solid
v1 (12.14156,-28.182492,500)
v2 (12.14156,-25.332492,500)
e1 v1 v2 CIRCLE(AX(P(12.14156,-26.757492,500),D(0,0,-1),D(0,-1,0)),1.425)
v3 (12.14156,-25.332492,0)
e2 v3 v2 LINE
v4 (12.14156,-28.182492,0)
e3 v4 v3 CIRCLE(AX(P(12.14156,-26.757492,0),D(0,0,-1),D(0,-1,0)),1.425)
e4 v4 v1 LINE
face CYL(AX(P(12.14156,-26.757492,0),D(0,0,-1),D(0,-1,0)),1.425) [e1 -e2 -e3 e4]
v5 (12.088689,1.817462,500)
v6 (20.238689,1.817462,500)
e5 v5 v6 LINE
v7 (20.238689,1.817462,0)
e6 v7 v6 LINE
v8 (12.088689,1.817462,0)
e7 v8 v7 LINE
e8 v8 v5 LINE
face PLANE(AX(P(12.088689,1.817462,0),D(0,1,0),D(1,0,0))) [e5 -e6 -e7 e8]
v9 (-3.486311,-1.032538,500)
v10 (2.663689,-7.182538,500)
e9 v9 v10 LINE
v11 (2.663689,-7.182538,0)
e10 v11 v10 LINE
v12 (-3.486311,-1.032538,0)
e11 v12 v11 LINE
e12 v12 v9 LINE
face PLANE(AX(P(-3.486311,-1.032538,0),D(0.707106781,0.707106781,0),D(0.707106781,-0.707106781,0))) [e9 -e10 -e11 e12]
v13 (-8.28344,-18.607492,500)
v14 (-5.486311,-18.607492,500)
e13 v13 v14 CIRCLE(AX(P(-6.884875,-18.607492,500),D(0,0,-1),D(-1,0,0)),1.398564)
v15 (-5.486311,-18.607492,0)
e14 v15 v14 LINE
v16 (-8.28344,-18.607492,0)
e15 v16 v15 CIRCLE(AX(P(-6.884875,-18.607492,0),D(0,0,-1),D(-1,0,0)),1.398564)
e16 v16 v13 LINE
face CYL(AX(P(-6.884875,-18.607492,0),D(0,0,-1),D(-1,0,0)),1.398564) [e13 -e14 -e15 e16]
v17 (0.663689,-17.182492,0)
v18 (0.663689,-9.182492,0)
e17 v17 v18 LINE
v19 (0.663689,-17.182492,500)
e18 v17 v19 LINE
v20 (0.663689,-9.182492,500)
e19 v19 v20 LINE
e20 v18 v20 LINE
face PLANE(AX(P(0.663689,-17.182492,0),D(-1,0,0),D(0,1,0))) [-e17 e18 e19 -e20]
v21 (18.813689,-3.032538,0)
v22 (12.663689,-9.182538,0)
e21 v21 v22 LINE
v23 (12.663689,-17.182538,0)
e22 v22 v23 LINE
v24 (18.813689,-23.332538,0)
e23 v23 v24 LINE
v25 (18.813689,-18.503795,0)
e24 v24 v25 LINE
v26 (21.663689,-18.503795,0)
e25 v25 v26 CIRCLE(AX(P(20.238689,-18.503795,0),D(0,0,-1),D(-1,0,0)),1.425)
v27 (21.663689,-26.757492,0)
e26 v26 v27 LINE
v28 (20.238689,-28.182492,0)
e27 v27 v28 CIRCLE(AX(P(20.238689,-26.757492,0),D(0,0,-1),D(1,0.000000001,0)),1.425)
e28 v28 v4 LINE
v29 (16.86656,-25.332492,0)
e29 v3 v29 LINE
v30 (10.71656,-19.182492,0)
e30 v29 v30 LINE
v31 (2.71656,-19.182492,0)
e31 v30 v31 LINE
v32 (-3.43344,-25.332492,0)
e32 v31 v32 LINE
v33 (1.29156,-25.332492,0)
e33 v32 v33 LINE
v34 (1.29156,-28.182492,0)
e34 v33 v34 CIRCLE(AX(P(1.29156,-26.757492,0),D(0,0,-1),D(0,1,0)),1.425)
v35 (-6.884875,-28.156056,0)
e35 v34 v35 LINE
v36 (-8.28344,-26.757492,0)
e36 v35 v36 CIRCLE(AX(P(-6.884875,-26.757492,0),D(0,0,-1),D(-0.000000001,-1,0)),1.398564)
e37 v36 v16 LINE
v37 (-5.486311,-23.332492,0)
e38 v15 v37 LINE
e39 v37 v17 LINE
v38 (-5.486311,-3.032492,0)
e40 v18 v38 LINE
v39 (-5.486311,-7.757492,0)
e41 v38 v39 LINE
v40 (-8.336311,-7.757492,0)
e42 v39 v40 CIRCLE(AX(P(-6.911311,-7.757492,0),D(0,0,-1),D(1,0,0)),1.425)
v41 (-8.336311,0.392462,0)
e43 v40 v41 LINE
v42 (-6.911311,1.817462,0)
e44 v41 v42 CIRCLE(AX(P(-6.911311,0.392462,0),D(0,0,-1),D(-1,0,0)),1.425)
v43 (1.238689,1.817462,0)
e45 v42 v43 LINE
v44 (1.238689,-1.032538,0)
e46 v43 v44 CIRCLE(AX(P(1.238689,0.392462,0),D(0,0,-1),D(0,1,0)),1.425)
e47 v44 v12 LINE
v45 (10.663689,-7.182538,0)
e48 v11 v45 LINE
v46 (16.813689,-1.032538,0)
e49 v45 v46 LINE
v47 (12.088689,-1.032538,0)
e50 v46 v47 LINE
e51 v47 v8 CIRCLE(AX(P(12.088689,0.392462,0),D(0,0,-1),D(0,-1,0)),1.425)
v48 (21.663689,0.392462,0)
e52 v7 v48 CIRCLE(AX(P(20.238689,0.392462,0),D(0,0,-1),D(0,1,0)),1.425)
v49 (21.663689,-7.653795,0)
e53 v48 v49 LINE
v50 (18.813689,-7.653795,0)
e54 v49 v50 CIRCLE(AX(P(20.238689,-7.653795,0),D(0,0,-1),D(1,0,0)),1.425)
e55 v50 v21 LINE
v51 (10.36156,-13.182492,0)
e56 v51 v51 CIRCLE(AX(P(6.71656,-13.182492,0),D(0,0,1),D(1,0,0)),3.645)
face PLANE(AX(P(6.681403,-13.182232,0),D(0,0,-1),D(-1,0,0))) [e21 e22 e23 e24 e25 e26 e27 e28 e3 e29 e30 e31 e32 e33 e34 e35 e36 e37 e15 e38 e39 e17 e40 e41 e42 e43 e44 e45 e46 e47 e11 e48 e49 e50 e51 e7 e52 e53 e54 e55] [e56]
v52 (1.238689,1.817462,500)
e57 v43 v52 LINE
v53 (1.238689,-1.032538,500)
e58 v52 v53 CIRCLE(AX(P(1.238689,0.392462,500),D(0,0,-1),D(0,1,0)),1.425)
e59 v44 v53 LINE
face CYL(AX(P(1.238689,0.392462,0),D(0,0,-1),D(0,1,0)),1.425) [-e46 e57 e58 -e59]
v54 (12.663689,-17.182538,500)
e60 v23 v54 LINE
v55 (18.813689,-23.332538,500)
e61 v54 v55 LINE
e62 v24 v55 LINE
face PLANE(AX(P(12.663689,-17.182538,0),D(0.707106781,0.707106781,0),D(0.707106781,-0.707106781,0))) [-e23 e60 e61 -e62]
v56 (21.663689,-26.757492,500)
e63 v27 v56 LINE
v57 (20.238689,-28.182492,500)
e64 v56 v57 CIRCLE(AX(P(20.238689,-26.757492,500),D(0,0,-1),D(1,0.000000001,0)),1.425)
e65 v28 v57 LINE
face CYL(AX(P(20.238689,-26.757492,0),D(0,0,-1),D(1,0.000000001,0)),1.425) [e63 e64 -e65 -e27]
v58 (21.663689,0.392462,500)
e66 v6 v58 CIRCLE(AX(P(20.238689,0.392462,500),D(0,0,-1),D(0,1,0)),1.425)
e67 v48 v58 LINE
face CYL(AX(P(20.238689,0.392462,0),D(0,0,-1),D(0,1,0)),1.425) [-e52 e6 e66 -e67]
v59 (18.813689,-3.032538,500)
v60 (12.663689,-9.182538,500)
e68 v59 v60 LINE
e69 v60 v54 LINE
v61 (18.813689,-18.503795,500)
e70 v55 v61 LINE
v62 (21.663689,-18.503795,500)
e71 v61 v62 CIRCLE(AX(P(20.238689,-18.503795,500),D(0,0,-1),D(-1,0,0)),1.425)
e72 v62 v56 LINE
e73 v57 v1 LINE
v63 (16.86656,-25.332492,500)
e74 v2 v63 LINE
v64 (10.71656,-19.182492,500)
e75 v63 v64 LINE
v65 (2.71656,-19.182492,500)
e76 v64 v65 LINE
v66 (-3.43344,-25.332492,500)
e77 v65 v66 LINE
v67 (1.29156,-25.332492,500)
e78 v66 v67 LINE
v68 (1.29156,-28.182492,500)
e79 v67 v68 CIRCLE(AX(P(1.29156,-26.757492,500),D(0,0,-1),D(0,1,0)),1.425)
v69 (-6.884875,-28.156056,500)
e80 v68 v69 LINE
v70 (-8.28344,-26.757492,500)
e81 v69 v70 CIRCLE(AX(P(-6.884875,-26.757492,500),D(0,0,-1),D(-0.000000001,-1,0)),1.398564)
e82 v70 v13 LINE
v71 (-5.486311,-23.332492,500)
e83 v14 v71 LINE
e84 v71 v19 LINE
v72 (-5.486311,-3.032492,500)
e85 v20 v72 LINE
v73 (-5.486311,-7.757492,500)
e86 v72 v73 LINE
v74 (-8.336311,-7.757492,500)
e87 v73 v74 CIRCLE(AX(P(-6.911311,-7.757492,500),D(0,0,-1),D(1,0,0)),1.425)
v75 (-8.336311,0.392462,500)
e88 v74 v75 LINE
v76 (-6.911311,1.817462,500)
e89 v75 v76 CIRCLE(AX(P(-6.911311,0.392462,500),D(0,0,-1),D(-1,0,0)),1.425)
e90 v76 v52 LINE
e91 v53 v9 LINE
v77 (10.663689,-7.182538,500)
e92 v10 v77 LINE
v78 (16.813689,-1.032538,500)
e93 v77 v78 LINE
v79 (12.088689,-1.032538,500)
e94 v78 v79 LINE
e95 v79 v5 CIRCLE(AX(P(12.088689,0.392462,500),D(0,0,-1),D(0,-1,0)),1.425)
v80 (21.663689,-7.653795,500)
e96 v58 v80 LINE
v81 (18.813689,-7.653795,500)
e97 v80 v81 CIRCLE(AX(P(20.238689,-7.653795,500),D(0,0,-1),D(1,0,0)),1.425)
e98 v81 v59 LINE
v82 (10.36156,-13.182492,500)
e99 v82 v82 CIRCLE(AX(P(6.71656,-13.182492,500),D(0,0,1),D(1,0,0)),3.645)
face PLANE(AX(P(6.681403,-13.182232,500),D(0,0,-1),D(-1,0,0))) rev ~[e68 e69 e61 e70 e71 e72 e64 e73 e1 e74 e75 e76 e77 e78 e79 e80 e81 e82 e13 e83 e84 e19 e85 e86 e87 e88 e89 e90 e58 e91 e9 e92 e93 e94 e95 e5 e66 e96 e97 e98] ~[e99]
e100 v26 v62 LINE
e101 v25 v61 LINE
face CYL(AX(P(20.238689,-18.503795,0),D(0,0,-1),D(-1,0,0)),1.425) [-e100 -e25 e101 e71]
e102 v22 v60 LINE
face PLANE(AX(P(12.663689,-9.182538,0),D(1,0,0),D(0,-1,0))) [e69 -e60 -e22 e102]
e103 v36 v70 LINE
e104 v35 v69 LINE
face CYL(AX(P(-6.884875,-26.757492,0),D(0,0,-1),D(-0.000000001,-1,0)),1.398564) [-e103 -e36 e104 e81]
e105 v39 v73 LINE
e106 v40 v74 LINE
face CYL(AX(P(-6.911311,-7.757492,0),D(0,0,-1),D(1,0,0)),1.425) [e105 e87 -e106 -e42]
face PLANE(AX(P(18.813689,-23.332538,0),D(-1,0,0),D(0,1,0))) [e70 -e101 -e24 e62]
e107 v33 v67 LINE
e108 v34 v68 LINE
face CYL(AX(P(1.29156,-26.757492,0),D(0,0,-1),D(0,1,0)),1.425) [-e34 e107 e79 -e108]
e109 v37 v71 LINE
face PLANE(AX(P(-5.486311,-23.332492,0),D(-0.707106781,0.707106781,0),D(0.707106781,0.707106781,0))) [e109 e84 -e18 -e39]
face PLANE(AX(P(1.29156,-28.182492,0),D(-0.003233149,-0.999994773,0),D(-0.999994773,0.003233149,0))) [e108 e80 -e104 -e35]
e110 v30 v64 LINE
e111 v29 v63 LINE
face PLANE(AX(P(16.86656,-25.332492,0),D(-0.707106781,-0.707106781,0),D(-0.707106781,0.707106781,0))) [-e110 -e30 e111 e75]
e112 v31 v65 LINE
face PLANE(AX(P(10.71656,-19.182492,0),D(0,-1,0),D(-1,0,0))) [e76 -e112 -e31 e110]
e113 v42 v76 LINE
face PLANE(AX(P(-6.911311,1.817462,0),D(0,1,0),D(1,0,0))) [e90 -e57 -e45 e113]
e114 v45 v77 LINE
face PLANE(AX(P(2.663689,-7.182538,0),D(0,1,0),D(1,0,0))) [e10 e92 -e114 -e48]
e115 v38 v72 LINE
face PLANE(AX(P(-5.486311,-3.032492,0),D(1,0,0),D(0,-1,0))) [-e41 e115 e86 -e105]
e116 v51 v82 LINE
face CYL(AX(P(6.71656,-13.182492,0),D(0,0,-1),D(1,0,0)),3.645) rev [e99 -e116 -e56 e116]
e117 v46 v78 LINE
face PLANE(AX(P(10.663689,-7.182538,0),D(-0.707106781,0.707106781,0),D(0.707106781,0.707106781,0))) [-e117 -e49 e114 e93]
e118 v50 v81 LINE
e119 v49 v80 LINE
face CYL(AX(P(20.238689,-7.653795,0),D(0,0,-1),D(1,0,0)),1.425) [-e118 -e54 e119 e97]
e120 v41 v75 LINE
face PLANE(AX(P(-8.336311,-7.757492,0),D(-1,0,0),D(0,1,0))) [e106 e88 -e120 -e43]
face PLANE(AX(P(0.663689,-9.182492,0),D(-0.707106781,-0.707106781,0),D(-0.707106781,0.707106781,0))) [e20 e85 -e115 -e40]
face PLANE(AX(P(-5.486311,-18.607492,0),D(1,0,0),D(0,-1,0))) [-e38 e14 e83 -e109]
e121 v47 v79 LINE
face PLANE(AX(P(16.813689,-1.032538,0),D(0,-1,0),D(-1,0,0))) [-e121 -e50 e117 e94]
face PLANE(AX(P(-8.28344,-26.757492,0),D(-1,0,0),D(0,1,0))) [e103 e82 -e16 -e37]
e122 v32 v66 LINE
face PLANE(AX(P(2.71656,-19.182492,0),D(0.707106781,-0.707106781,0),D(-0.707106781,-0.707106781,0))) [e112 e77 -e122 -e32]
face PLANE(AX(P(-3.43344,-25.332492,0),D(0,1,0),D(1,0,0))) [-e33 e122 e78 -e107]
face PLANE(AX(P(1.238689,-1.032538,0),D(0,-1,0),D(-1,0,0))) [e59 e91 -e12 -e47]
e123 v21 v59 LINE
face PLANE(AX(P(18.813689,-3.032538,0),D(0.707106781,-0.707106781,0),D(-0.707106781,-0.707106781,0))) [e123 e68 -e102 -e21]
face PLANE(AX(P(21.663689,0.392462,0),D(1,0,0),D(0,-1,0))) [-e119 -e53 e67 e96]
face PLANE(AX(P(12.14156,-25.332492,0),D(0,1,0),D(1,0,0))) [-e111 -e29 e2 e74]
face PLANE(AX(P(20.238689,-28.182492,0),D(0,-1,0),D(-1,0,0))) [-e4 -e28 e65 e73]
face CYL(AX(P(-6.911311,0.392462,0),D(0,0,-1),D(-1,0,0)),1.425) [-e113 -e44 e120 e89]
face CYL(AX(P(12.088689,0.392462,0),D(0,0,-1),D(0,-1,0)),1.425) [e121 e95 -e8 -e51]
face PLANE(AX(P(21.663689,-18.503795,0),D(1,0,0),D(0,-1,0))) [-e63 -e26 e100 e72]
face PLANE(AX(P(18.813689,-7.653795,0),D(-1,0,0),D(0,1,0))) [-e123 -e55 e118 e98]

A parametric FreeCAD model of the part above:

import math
import FreeCAD as App
import Part
import Sketcher

V = App.Vector

doc = App.newDocument("Part")
body = doc.addObject("PartDesign::Body", "Body")

# Sketch on XY plane
sketch1 = doc.addObject("Sketcher::SketchObject", "Sketch")
body.addObject(sketch1)
sketch1.AttachmentSupport = (doc.XY_Plane, [""])
sketch1.MapMode = "FlatFace"
sketch1.addGeometry(Part.LineSegment(V(16.9, -25.3, 0), V(12.1, -25.3, 0)), False)
sketch1.addGeometry(Part.ArcOfCircle(Part.Circle(V(12.1, -26.8, 0), V(0, 0, 1), 1.4), math.radians(90), math.radians(270)), False)
sketch1.addGeometry(Part.LineSegment(V(12.1, -28.2, 0), V(20.2, -28.2, 0)), False)
sketch1.addGeometry(Part.ArcOfCircle(Part.Circle(V(20.2, -26.8, 0), V(0, 0, 1), 1.4), math.radians(-90), math.radians(0)), False)
sketch1.addGeometry(Part.LineSegment(V(21.7, -26.8, 0), V(21.7, -18.5, 0)), False)
sketch1.addGeometry(Part.ArcOfCircle(Part.Circle(V(20.2, -18.5, 0), V(0, 0, 1), 1.4), math.radians(0), math.radians(180)), False)
sketch1.addGeometry(Part.LineSegment(V(18.8, -18.5, 0), V(18.8, -23.3, 0)), False)
sketch1.addGeometry(Part.LineSegment(V(18.8, -23.3, 0), V(12.7, -17.2, 0)), False)
sketch1.addGeometry(Part.LineSegment(V(12.7, -17.2, 0), V(12.7, -9.2, 0)), False)
sketch1.addGeometry(Part.LineSegment(V(12.7, -9.2, 0), V(18.8, -3, 0)), False)
sketch1.addGeometry(Part.LineSegment(V(18.8, -3, 0), V(18.8, -7.7, 0)), False)
sketch1.addGeometry(Part.ArcOfCircle(Part.Circle(V(20.2, -7.7, 0), V(0, 0, 1), 1.4), math.radians(180), math.radians(360)), False)
sketch1.addGeometry(Part.LineSegment(V(21.7, -7.7, 0), V(21.7, 0.4, 0)), False)
sketch1.addGeometry(Part.ArcOfCircle(Part.Circle(V(20.2, 0.4, 0), V(0, 0, 1), 1.4), math.radians(0), math.radians(90)), False)
sketch1.addGeometry(Part.LineSegment(V(20.2, 1.8, 0), V(12.1, 1.8, 0)), False)
sketch1.addGeometry(Part.ArcOfCircle(Part.Circle(V(12.1, 0.4, 0), V(0, 0, 1), 1.4), math.radians(90), math.radians(270)), False)
sketch1.addGeometry(Part.LineSegment(V(12.1, -1, 0), V(16.8, -1, 0)), False)
sketch1.addGeometry(Part.LineSegment(V(16.8, -1, 0), V(10.7, -7.2, 0)), False)
sketch1.addGeometry(Part.LineSegment(V(10.7, -7.2, 0), V(2.7, -7.2, 0)), False)
sketch1.addGeometry(Part.LineSegment(V(2.7, -7.2, 0), V(-3.5, -1, 0)), False)
sketch1.addGeometry(Part.LineSegment(V(-3.5, -1, 0), V(1.2, -1, 0)), False)
sketch1.addGeometry(Part.ArcOfCircle(Part.Circle(V(1.2, 0.4, 0), V(0, 0, 1), 1.4), math.radians(-90), math.radians(90)), False)
sketch1.addGeometry(Part.LineSegment(V(1.2, 1.8, 0), V(-6.9, 1.8, 0)), False)
sketch1.addGeometry(Part.ArcOfCircle(Part.Circle(V(-6.9, 0.4, 0), V(0, 0, 1), 1.4), math.radians(90), math.radians(180)), False)
sketch1.addGeometry(Part.LineSegment(V(-8.3, 0.4, 0), V(-8.3, -7.8, 0)), False)
sketch1.addGeometry(Part.ArcOfCircle(Part.Circle(V(-6.9, -7.8, 0), V(0, 0, 1), 1.4), math.radians(180), math.radians(360)), False)
sketch1.addGeometry(Part.LineSegment(V(-5.5, -7.8, 0), V(-5.5, -3, 0)), False)
sketch1.addGeometry(Part.LineSegment(V(-5.5, -3, 0), V(0.7, -9.2, 0)), False)
sketch1.addGeometry(Part.LineSegment(V(0.7, -9.2, 0), V(0.7, -17.2, 0)), False)
sketch1.addGeometry(Part.LineSegment(V(0.7, -17.2, 0), V(-5.5, -23.3, 0)), False)
sketch1.addGeometry(Part.LineSegment(V(-5.5, -23.3, 0), V(-5.5, -18.6, 0)), False)
sketch1.addGeometry(Part.ArcOfCircle(Part.Circle(V(-6.9, -18.6, 0), V(0, 0, 1), 1.4), math.radians(0), math.radians(180)), False)
sketch1.addGeometry(Part.LineSegment(V(-8.3, -18.6, 0), V(-8.3, -26.8, 0)), False)
sketch1.addGeometry(Part.ArcOfCircle(Part.Circle(V(-6.9, -26.8, 0), V(0, 0, 1), 1.4), math.radians(-180), math.radians(-90)), False)
sketch1.addGeometry(Part.LineSegment(V(-6.9, -28.2, 0), V(1.3, -28.2, 0)), False)
sketch1.addGeometry(Part.ArcOfCircle(Part.Circle(V(1.3, -26.8, 0), V(0, 0, 1), 1.4), math.radians(-90), math.radians(90)), False)
sketch1.addGeometry(Part.LineSegment(V(1.3, -25.3, 0), V(-3.4, -25.3, 0)), False)
sketch1.addGeometry(Part.LineSegment(V(-3.4, -25.3, 0), V(2.7, -19.2, 0)), False)
sketch1.addGeometry(Part.LineSegment(V(2.7, -19.2, 0), V(10.7, -19.2, 0)), False)
sketch1.addGeometry(Part.LineSegment(V(10.7, -19.2, 0), V(16.9, -25.3, 0)), False)
sketch1.addGeometry(Part.Circle(V(6.7, -13.2, 0), V(0, 0, 1), 3.6), False)
sketch1.addConstraint(Sketcher.Constraint("Tangent", 0, 2, 1, 1))
sketch1.addConstraint(Sketcher.Constraint("Tangent", 1, 2, 2, 1))
sketch1.addConstraint(Sketcher.Constraint("Tangent", 2, 2, 3, 1))
sketch1.addConstraint(Sketcher.Constraint("Tangent", 3, 2, 4, 1))
sketch1.addConstraint(Sketcher.Constraint("Tangent", 4, 2, 5, 1))
sketch1.addConstraint(Sketcher.Constraint("Tangent", 5, 2, 6, 1))
sketch1.addConstraint(Sketcher.Constraint("Coincident", 6, 2, 7, 1))
sketch1.addConstraint(Sketcher.Constraint("Coincident", 7, 2, 8, 1))
sketch1.addConstraint(Sketcher.Constraint("Coincident", 8, 2, 9, 1))
sketch1.addConstraint(Sketcher.Constraint("Coincident", 9, 2, 10, 1))
sketch1.addConstraint(Sketcher.Constraint("Tangent", 10, 2, 11, 1))
sketch1.addConstraint(Sketcher.Constraint("Tangent", 11, 2, 12, 1))
sketch1.addConstraint(Sketcher.Constraint("Tangent", 12, 2, 13, 1))
sketch1.addConstraint(Sketcher.Constraint("Tangent", 13, 2, 14, 1))
sketch1.addConstraint(Sketcher.Constraint("Tangent", 14, 2, 15, 1))
sketch1.addConstraint(Sketcher.Constraint("Tangent", 15, 2, 16, 1))
sketch1.addConstraint(Sketcher.Constraint("Coincident", 16, 2, 17, 1))
sketch1.addConstraint(Sketcher.Constraint("Coincident", 17, 2, 18, 1))
sketch1.addConstraint(Sketcher.Constraint("Coincident", 18, 2, 19, 1))
sketch1.addConstraint(Sketcher.Constraint("Coincident", 19, 2, 20, 1))
sketch1.addConstraint(Sketcher.Constraint("Tangent", 20, 2, 21, 1))
sketch1.addConstraint(Sketcher.Constraint("Tangent", 21, 2, 22, 1))
sketch1.addConstraint(Sketcher.Constraint("Tangent", 22, 2, 23, 1))
sketch1.addConstraint(Sketcher.Constraint("Tangent", 23, 2, 24, 1))
sketch1.addConstraint(Sketcher.Constraint("Tangent", 24, 2, 25, 1))
sketch1.addConstraint(Sketcher.Constraint("Tangent", 25, 2, 26, 1))
sketch1.addConstraint(Sketcher.Constraint("Coincident", 26, 2, 27, 1))
sketch1.addConstraint(Sketcher.Constraint("Coincident", 27, 2, 28, 1))
sketch1.addConstraint(Sketcher.Constraint("Coincident", 28, 2, 29, 1))
sketch1.addConstraint(Sketcher.Constraint("Coincident", 29, 2, 30, 1))
sketch1.addConstraint(Sketcher.Constraint("Tangent", 30, 2, 31, 1))
sketch1.addConstraint(Sketcher.Constraint("Tangent", 31, 2, 32, 1))
sketch1.addConstraint(Sketcher.Constraint("Tangent", 32, 2, 33, 1))
sketch1.addConstraint(Sketcher.Constraint("Coincident", 33, 2, 34, 1))
sketch1.addConstraint(Sketcher.Constraint("Coincident", 34, 2, 35, 1))
sketch1.addConstraint(Sketcher.Constraint("Tangent", 35, 2, 36, 1))
sketch1.addConstraint(Sketcher.Constraint("Coincident", 36, 2, 37, 1))
sketch1.addConstraint(Sketcher.Constraint("Coincident", 37, 2, 38, 1))
sketch1.addConstraint(Sketcher.Constraint("Coincident", 38, 2, 39, 1))
sketch1.addConstraint(Sketcher.Constraint("Coincident", 39, 2, 0, 1))
sketch1.addConstraint(Sketcher.Constraint("Horizontal", 0))
sketch1.addConstraint(Sketcher.Constraint("Horizontal", 2))
sketch1.addConstraint(Sketcher.Constraint("Vertical", 4))
sketch1.addConstraint(Sketcher.Constraint("Vertical", 6))
sketch1.addConstraint(Sketcher.Constraint("Vertical", 8))
sketch1.addConstraint(Sketcher.Constraint("Vertical", 10))
sketch1.addConstraint(Sketcher.Constraint("Vertical", 12))
sketch1.addConstraint(Sketcher.Constraint("Horizontal", 14))
sketch1.addConstraint(Sketcher.Constraint("Horizontal", 16))
sketch1.addConstraint(Sketcher.Constraint("Horizontal", 18))
sketch1.addConstraint(Sketcher.Constraint("Horizontal", 20))
sketch1.addConstraint(Sketcher.Constraint("Horizontal", 22))
sketch1.addConstraint(Sketcher.Constraint("Vertical", 24))
sketch1.addConstraint(Sketcher.Constraint("Vertical", 26))
sketch1.addConstraint(Sketcher.Constraint("Vertical", 28))
sketch1.addConstraint(Sketcher.Constraint("Vertical", 30))
sketch1.addConstraint(Sketcher.Constraint("Vertical", 32))
sketch1.addConstraint(Sketcher.Constraint("Horizontal", 36))
sketch1.addConstraint(Sketcher.Constraint("Horizontal", 38))
sketch1.addConstraint(Sketcher.Constraint("Equal", 1, 3))
sketch1.addConstraint(Sketcher.Constraint("Equal", 3, 5))
sketch1.addConstraint(Sketcher.Constraint("Equal", 5, 11))
sketch1.addConstraint(Sketcher.Constraint("Equal", 11, 13))
sketch1.addConstraint(Sketcher.Constraint("Equal", 13, 15))
sketch1.addConstraint(Sketcher.Constraint("Equal", 15, 21))
sketch1.addConstraint(Sketcher.Constraint("Equal", 21, 23))
sketch1.addConstraint(Sketcher.Constraint("Equal", 23, 25))
sketch1.addConstraint(Sketcher.Constraint("Equal", 31, 33))
sketch1.addConstraint(Sketcher.Constraint("Equal", 25, 35))
sketch1.addConstraint(Sketcher.Constraint("Perpendicular", 7, 9))
sketch1.addConstraint(Sketcher.Constraint("Parallel", 9, 17))
sketch1.addConstraint(Sketcher.Constraint("Perpendicular", 17, 19))
sketch1.addConstraint(Sketcher.Constraint("Parallel", 19, 27))
sketch1.addConstraint(Sketcher.Constraint("Perpendicular", 27, 29))
sketch1.addConstraint(Sketcher.Constraint("Parallel", 29, 37))
sketch1.addConstraint(Sketcher.Constraint("Perpendicular", 37, 39))
sketch1.addConstraint(Sketcher.Constraint("Horizontal", 15, 3, 21, 3))
sketch1.addConstraint(Sketcher.Constraint("Horizontal", 3, 3, 33, 3))
sketch1.addConstraint(Sketcher.Constraint("Horizontal", 33, 3, 35, 3))
sketch1.addConstraint(Sketcher.Constraint("Vertical", 5, 3, 11, 3))
sketch1.addConstraint(Sketcher.Constraint("Vertical", 26, 2, 29, 2))
sketch1.addConstraint(Sketcher.Constraint("Vertical", 31, 3, 33, 2))
sketch1.addConstraint(Sketcher.Constraint("Vertical", 35, 3, 34, 2))
sketch1.addConstraint(Sketcher.Constraint("Equal", 0, 16))
sketch1.addConstraint(Sketcher.Constraint("Equal", 16, 20))
sketch1.addConstraint(Sketcher.Constraint("Equal", 14, 22))
sketch1.addConstraint(Sketcher.Constraint("Equal", 20, 36))
sketch1.addConstraint(Sketcher.Constraint("Equal", 18, 38))
sketch1.addConstraint(Sketcher.Constraint("Equal", 38, 8))
sketch1.addConstraint(Sketcher.Constraint("Equal", 36, 26))
sketch1.addConstraint(Sketcher.Constraint("Equal", 8, 28))
sketch1.addConstraint(Sketcher.Constraint("Equal", 26, 30))
sketch1.addConstraint(Sketcher.Constraint("Equal", 22, 32))
sketch1.addConstraint(Sketcher.Constraint("Equal", 7, 9))
sketch1.addConstraint(Sketcher.Constraint("Equal", 9, 17))
sketch1.addConstraint(Sketcher.Constraint("Equal", 19, 27))
sketch1.addConstraint(Sketcher.Constraint("Equal", 29, 37))
sketch1.addConstraint(Sketcher.Constraint("Diameter", 40, 7.29))
sketch1.addConstraint(Sketcher.Constraint("DistanceX", 18, 2, 18, 1, 8.0))
sketch1.addConstraint(Sketcher.Constraint("Radius", 1, 1.425))
sketch1.addConstraint(Sketcher.Constraint("DistanceX", 21, 3, 13, 3, 19.0))
sketch1.addConstraint(Sketcher.Constraint("DistanceX", 8, 2, 11, 2, 9.0))
sketch1.addConstraint(Sketcher.Constraint("DistanceY", 9, 2, 15, 2, 2.0))
sketch1.addConstraint(Sketcher.Constraint("DistanceX", 16, 2, 9, 2, 2.0))
sketch1.addConstraint(Sketcher.Constraint("DistanceY", 40, 3, 27, 2, 4.0))
sketch1.addConstraint(Sketcher.Constraint("DistanceX", 37, 2, 40, 3, 4.0))
sketch1.addConstraint(Sketcher.Constraint("DistanceY", 5, 3, 11, 3, 10.85))
sketch1.addConstraint(Sketcher.Constraint("Radius", 31, 1.398564))
sketch1.addConstraint(Sketcher.Constraint("DistanceX", 32, 2, 34, 2, 9.575))
sketch1.addConstraint(Sketcher.Constraint("DistanceY", 4, 1, 4, 2, 8.253697))
sketch1.addConstraint(Sketcher.Constraint("DistanceY", 6, 2, 6, 1, 4.828744))
sketch1.addConstraint(Sketcher.Constraint("DistanceX", -1, 1, 1, 3, 12.14156))
sketch1.addConstraint(Sketcher.Constraint("DistanceY", 1, 3, -1, 1, 26.757492))
pad1 = doc.addObject("PartDesign::Pad", "Pad")
body.addObject(pad1)
pad1.Profile = sketch1
pad1.Length = 500

doc.recompute()
